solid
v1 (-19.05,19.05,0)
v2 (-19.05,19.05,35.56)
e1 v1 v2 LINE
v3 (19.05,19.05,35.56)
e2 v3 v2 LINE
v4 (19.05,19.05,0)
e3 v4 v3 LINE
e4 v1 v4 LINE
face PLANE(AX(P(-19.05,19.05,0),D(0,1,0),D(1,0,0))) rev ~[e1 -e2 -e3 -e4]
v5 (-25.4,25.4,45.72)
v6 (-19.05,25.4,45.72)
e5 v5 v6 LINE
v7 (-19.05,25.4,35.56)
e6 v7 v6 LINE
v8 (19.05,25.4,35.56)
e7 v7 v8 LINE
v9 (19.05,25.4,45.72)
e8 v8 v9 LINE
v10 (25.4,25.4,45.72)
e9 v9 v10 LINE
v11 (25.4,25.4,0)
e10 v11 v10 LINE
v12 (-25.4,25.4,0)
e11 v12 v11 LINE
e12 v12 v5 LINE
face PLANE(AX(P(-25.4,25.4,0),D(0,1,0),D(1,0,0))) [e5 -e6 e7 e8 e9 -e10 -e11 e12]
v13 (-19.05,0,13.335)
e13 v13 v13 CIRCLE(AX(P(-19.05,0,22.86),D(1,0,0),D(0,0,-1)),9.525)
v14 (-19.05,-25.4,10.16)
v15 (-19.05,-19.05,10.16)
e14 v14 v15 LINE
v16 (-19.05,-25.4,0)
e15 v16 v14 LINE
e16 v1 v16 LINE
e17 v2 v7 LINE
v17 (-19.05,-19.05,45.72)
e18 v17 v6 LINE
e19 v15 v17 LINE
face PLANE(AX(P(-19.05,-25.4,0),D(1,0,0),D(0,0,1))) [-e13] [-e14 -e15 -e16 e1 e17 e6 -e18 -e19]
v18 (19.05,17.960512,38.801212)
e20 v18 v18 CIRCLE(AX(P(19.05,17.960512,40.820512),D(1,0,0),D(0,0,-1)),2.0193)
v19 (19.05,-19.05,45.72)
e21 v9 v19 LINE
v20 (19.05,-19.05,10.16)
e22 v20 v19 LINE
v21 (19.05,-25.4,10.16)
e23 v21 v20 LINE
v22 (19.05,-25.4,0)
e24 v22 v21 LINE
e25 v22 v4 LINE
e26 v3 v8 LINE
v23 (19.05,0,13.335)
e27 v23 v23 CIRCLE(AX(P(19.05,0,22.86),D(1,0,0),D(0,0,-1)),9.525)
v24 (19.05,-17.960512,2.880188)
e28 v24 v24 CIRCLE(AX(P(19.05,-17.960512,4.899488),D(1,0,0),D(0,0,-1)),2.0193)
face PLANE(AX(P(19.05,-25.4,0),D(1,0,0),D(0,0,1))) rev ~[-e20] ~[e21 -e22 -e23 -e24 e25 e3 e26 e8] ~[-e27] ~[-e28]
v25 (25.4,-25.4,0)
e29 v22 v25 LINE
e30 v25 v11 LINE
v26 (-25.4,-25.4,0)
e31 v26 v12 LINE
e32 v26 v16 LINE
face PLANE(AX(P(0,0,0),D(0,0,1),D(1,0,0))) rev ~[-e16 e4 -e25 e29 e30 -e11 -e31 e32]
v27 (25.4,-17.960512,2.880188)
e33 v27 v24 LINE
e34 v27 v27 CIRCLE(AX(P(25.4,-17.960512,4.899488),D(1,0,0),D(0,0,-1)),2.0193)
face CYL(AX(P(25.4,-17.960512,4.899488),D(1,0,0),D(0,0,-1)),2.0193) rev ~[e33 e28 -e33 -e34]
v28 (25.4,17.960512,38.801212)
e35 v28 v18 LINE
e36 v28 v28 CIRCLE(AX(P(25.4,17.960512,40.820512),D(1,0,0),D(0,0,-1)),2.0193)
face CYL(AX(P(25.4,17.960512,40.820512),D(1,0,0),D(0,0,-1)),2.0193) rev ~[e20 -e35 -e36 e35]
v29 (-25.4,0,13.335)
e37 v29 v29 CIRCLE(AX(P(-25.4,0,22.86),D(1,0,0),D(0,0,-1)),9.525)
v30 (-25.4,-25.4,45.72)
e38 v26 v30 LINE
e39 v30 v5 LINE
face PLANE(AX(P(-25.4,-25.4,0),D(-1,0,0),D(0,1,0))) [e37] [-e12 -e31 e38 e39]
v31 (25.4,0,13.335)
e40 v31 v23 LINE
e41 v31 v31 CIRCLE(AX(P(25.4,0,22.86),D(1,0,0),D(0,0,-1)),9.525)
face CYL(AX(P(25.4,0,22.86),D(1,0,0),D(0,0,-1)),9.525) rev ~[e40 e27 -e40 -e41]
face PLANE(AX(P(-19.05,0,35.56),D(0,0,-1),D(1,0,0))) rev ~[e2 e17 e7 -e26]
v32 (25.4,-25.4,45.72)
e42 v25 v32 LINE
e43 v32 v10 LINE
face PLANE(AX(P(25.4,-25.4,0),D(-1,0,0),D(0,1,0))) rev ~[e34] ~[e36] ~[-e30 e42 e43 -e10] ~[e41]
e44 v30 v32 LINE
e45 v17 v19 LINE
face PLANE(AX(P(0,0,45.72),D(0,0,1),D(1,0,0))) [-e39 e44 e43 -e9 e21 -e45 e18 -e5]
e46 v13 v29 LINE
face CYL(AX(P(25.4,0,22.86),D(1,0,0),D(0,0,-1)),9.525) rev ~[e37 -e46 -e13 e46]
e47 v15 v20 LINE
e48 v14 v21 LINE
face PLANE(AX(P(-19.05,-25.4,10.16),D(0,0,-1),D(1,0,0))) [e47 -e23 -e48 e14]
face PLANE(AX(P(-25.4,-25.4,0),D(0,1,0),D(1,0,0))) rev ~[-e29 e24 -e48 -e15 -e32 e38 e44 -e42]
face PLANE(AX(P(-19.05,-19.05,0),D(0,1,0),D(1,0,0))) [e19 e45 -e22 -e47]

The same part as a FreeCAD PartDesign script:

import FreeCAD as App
import Part
import Sketcher

V = App.Vector
Q = App.Units.Quantity

doc = App.newDocument("Part")
body = doc.addObject("PartDesign::Body", "Body")

sketch1 = body.newObject("Sketcher::SketchObject", "Sketch")
sketch1.AttachmentSupport = (doc.getObject("XY_Plane"), [""])
sketch1.MapMode = "FlatFace"
sketch1.addGeometry(Part.LineSegment(V(-25, 25, 0), V(-25, -25, 0)), False)
sketch1.addGeometry(Part.LineSegment(V(-25, -25, 0), V(25, -25, 0)), False)
sketch1.addGeometry(Part.LineSegment(V(25, -25, 0), V(25, 25, 0)), False)
sketch1.addGeometry(Part.LineSegment(V(25, 25, 0), V(-25, 25, 0)), False)
sketch1.addGeometry(Part.LineSegment(V(19, -19, 0), V(-19, -19, 0)), False)
sketch1.addGeometry(Part.LineSegment(V(-19, -19, 0), V(-19, 19, 0)), False)
sketch1.addGeometry(Part.LineSegment(V(-19, 19, 0), V(19, 19, 0)), False)
sketch1.addGeometry(Part.LineSegment(V(19, 19, 0), V(19, -19, 0)), False)
sketch1.addConstraint(Sketcher.Constraint("Coincident", 0, 2, 1, 1))
sketch1.addConstraint(Sketcher.Constraint("Coincident", 1, 2, 2, 1))
sketch1.addConstraint(Sketcher.Constraint("Coincident", 2, 2, 3, 1))
sketch1.addConstraint(Sketcher.Constraint("Coincident", 3, 2, 0, 1))
sketch1.addConstraint(Sketcher.Constraint("Coincident", 4, 2, 5, 1))
sketch1.addConstraint(Sketcher.Constraint("Coincident", 5, 2, 6, 1))
sketch1.addConstraint(Sketcher.Constraint("Coincident", 6, 2, 7, 1))
sketch1.addConstraint(Sketcher.Constraint("Coincident", 7, 2, 4, 1))
sketch1.addConstraint(Sketcher.Constraint("Vertical", 0))
sketch1.addConstraint(Sketcher.Constraint("Horizontal", 1))
sketch1.addConstraint(Sketcher.Constraint("Vertical", 2))
sketch1.addConstraint(Sketcher.Constraint("Horizontal", 3))
sketch1.addConstraint(Sketcher.Constraint("Horizontal", 4))
sketch1.addConstraint(Sketcher.Constraint("Vertical", 5))
sketch1.addConstraint(Sketcher.Constraint("Horizontal", 6))
sketch1.addConstraint(Sketcher.Constraint("Vertical", 7))
sketch1.addConstraint(Sketcher.Constraint("Symmetric", 0, 2, 2, 2, -1, 1))
sketch1.addConstraint(Sketcher.Constraint("Symmetric", 4, 2, 6, 2, -1, 1))
sketch1.addConstraint(Sketcher.Constraint("Equal", 3, 0))
sketch1.addConstraint(Sketcher.Constraint("Equal", 6, 5))
sketch1.addConstraint(Sketcher.Constraint("DistanceX", 1, 1, 1, 2, Q("2 in")))
sketch1.addConstraint(Sketcher.Constraint("DistanceX", 4, 2, 4, 1, Q("1.5 in")))
pad1 = body.newObject("PartDesign::Pad", "Pad")
pad1.Profile = sketch1
pad1.Length = Q("1.8 in")

sketch2 = body.newObject("Sketcher::SketchObject", "Sketch001")
sketch2.AttachmentSupport = (doc.getObject("YZ_Plane"), [""])
sketch2.MapMode = "FlatFace"
sketch2.AttachmentOffset = App.Placement(V(0, 0, 1 * 25.4), App.Rotation())
sketch2.addGeometry(Part.Circle(V(18, 40.8, 0), V(0, 0, 1), 2), False)
sketch2.addGeometry(Part.Circle(V(-18, 4.9, 0), V(0, 0, 1), 2), False)
sketch2.addConstraint(Sketcher.Constraint("Equal", 0, 1))
sketch2.addConstraint(Sketcher.Constraint("Diameter", 0, Q("0.159 in")))
sketch2.addConstraint(Sketcher.Constraint("DistanceX", -1, 1, 0, 3, 17.960512))
sketch2.addConstraint(Sketcher.Constraint("DistanceY", -1, 1, 0, 3, 40.820512))
sketch2.addConstraint(Sketcher.Constraint("DistanceX", 1, 3, -1, 1, 17.960512))
sketch2.addConstraint(Sketcher.Constraint("DistanceY", -1, 1, 1, 3, 4.899488))
pocket1 = body.newObject("PartDesign::Pocket", "Pocket")
pocket1.Profile = sketch2
pocket1.Type = "TwoLengths"
pocket1.Length = 1
pocket1.Length2 = Q("0.25 in")
pocket1.Reversed = True

sketch3 = body.newObject("Sketcher::SketchObject", "Sketch002")
sketch3.AttachmentSupport = (doc.getObject("YZ_Plane"), [""])
sketch3.MapMode = "FlatFace"
sketch3.AttachmentOffset = App.Placement(V(0, 0, 1 * 25.4), App.Rotation())
sketch3.addGeometry(Part.Circle(V(0, 23, 0), V(0, 0, 1), 10), False)
sketch3.addConstraint(Sketcher.Constraint("PointOnObject", 0, 3, -2))
sketch3.addConstraint(Sketcher.Constraint("Diameter", 0, Q("0.75 in")))
sketch3.addConstraint(Sketcher.Constraint("DistanceY", -1, 1, 0, 3, Q("0.9 in")))
pocket2 = body.newObject("PartDesign::Pocket", "Pocket001")
pocket2.Profile = sketch3
pocket2.Type = "ThroughAll"
pocket2.Midplane = True

sketch4 = body.newObject("Sketcher::SketchObject", "Sketch003")
sketch4.AttachmentSupport = (doc.getObject("XZ_Plane"), [""])
sketch4.MapMode = "FlatFace"
sketch4.AttachmentOffset = App.Placement(V(0, 0, 1 * 25.4), App.Rotation())
sketch4.addGeometry(Part.LineSegment(V(-19, 10, 0), V(-19, 0, 0)), False)
sketch4.addGeometry(Part.LineSegment(V(-19, 0, 0), V(19, 0, 0)), False)
sketch4.addGeometry(Part.LineSegment(V(19, 0, 0), V(19, 10, 0)), False)
sketch4.addGeometry(Part.LineSegment(V(19, 10, 0), V(-19, 10, 0)), False)
sketch4.addConstraint(Sketcher.Constraint("Coincident", 0, 2, 1, 1))
sketch4.addConstraint(Sketcher.Constraint("Coincident", 1, 2, 2, 1))
sketch4.addConstraint(Sketcher.Constraint("Coincident", 2, 2, 3, 1))
sketch4.addConstraint(Sketcher.Constraint("Coincident", 3, 2, 0, 1))
sketch4.addConstraint(Sketcher.Constraint("Vertical", 0))
sketch4.addConstraint(Sketcher.Constraint("Horizontal", 1))
sketch4.addConstraint(Sketcher.Constraint("Vertical", 2))
sketch4.addConstraint(Sketcher.Constraint("Horizontal", 3))
sketch4.addConstraint(Sketcher.Constraint("Symmetric", 0, 2, 1, 2, -1, 1))
sketch4.addConstraint(Sketcher.Constraint("DistanceX", 1, 1, 1, 2, Q("1.5 in")))
sketch4.addConstraint(Sketcher.Constraint("DistanceY", 0, 2, 0, 1, Q("0.4 in")))
pocket3 = body.newObject("PartDesign::Pocket", "Pocket002")
pocket3.Profile = sketch4
pocket3.Type = "UpToFirst"

sketch5 = body.newObject("Sketcher::SketchObject", "Sketch004")
sketch5.AttachmentSupport = (doc.getObject("XZ_Plane"), [""])
sketch5.MapMode = "FlatFace"
sketch5.AttachmentOffset = App.Placement(V(0, 0, 1 * 25.4), App.Rotation())
sketch5.addGeometry(Part.LineSegment(V(-19, 10, 0), V(-19, 0, 0)), False)
sketch5.addGeometry(Part.LineSegment(V(-19, 0, 0), V(19, 0, 0)), False)
sketch5.addGeometry(Part.LineSegment(V(19, 0, 0), V(19, 10, 0)), False)
sketch5.addGeometry(Part.LineSegment(V(19, 10, 0), V(-19, 10, 0)), False)
sketch5.addConstraint(Sketcher.Constraint("Coincident", 0, 2, 1, 1))
sketch5.addConstraint(Sketcher.Constraint("Coincident", 1, 2, 2, 1))
sketch5.addConstraint(Sketcher.Constraint("Coincident", 2, 2, 3, 1))
sketch5.addConstraint(Sketcher.Constraint("Coincident", 3, 2, 0, 1))
sketch5.addConstraint(Sketcher.Constraint("Vertical", 0))
sketch5.addConstraint(Sketcher.Constraint("Horizontal", 1))
sketch5.addConstraint(Sketcher.Constraint("Vertical", 2))
sketch5.addConstraint(Sketcher.Constraint("Horizontal", 3))
sketch5.addConstraint(Sketcher.Constraint("Symmetric", 0, 2, 1, 2, -1, 1))
sketch5.addConstraint(Sketcher.Constraint("DistanceX", 1, 1, 1, 2, Q("1.5 in")))
sketch5.addConstraint(Sketcher.Constraint("DistanceY", 0, 2, 0, 1, Q("0.4 in")))
pocket4 = body.newObject("PartDesign::Pocket", "Pocket003")
pocket4.Profile = sketch5
pocket4.Length = 1
pocket4.Reversed = True

sketch6 = body.newObject("Sketcher::SketchObject", "Sketch005")
sketch6.AttachmentSupport = (doc.getObject("XZ_Plane"), [""])
sketch6.MapMode = "FlatFace"
sketch6.addGeometry(Part.LineSegment(V(-19, 46, 0), V(-19, 36, 0)), False)
sketch6.addGeometry(Part.LineSegment(V(-19, 36, 0), V(19, 36, 0)), False)
sketch6.addGeometry(Part.LineSegment(V(19, 36, 0), V(19, 46, 0)), False)
sketch6.addGeometry(Part.LineSegment(V(19, 46, 0), V(-19, 46, 0)), False)
sketch6.addConstraint(Sketcher.Constraint("Coincident", 0, 2, 1, 1))
sketch6.addConstraint(Sketcher.Constraint("Coincident", 1, 2, 2, 1))
sketch6.addConstraint(Sketcher.Constraint("Coincident", 2, 2, 3, 1))
sketch6.addConstraint(Sketcher.Constraint("Coincident", 3, 2, 0, 1))
sketch6.addConstraint(Sketcher.Constraint("Vertical", 0))
sketch6.addConstraint(Sketcher.Constraint("Horizontal", 1))
sketch6.addConstraint(Sketcher.Constraint("Vertical", 2))
sketch6.addConstraint(Sketcher.Constraint("Horizontal", 3))
sketch6.addConstraint(Sketcher.Constraint("DistanceX", 1, 1, 1, 2, Q("1.5 in")))
sketch6.addConstraint(Sketcher.Constraint("DistanceY", 0, 2, 0, 1, Q("0.4 in")))
sketch6.addConstraint(Sketcher.Constraint("DistanceY", -1, 1, 0, 2, Q("1.4 in")))
sketch6.addConstraint(Sketcher.Constraint("DistanceX", 0, 2, -1, 1, Q("0.75 in")))
pocket5 = body.newObject("PartDesign::Pocket", "Pocket004")
pocket5.Profile = sketch6
pocket5.Length = Q("1 in")

doc.recompute()
